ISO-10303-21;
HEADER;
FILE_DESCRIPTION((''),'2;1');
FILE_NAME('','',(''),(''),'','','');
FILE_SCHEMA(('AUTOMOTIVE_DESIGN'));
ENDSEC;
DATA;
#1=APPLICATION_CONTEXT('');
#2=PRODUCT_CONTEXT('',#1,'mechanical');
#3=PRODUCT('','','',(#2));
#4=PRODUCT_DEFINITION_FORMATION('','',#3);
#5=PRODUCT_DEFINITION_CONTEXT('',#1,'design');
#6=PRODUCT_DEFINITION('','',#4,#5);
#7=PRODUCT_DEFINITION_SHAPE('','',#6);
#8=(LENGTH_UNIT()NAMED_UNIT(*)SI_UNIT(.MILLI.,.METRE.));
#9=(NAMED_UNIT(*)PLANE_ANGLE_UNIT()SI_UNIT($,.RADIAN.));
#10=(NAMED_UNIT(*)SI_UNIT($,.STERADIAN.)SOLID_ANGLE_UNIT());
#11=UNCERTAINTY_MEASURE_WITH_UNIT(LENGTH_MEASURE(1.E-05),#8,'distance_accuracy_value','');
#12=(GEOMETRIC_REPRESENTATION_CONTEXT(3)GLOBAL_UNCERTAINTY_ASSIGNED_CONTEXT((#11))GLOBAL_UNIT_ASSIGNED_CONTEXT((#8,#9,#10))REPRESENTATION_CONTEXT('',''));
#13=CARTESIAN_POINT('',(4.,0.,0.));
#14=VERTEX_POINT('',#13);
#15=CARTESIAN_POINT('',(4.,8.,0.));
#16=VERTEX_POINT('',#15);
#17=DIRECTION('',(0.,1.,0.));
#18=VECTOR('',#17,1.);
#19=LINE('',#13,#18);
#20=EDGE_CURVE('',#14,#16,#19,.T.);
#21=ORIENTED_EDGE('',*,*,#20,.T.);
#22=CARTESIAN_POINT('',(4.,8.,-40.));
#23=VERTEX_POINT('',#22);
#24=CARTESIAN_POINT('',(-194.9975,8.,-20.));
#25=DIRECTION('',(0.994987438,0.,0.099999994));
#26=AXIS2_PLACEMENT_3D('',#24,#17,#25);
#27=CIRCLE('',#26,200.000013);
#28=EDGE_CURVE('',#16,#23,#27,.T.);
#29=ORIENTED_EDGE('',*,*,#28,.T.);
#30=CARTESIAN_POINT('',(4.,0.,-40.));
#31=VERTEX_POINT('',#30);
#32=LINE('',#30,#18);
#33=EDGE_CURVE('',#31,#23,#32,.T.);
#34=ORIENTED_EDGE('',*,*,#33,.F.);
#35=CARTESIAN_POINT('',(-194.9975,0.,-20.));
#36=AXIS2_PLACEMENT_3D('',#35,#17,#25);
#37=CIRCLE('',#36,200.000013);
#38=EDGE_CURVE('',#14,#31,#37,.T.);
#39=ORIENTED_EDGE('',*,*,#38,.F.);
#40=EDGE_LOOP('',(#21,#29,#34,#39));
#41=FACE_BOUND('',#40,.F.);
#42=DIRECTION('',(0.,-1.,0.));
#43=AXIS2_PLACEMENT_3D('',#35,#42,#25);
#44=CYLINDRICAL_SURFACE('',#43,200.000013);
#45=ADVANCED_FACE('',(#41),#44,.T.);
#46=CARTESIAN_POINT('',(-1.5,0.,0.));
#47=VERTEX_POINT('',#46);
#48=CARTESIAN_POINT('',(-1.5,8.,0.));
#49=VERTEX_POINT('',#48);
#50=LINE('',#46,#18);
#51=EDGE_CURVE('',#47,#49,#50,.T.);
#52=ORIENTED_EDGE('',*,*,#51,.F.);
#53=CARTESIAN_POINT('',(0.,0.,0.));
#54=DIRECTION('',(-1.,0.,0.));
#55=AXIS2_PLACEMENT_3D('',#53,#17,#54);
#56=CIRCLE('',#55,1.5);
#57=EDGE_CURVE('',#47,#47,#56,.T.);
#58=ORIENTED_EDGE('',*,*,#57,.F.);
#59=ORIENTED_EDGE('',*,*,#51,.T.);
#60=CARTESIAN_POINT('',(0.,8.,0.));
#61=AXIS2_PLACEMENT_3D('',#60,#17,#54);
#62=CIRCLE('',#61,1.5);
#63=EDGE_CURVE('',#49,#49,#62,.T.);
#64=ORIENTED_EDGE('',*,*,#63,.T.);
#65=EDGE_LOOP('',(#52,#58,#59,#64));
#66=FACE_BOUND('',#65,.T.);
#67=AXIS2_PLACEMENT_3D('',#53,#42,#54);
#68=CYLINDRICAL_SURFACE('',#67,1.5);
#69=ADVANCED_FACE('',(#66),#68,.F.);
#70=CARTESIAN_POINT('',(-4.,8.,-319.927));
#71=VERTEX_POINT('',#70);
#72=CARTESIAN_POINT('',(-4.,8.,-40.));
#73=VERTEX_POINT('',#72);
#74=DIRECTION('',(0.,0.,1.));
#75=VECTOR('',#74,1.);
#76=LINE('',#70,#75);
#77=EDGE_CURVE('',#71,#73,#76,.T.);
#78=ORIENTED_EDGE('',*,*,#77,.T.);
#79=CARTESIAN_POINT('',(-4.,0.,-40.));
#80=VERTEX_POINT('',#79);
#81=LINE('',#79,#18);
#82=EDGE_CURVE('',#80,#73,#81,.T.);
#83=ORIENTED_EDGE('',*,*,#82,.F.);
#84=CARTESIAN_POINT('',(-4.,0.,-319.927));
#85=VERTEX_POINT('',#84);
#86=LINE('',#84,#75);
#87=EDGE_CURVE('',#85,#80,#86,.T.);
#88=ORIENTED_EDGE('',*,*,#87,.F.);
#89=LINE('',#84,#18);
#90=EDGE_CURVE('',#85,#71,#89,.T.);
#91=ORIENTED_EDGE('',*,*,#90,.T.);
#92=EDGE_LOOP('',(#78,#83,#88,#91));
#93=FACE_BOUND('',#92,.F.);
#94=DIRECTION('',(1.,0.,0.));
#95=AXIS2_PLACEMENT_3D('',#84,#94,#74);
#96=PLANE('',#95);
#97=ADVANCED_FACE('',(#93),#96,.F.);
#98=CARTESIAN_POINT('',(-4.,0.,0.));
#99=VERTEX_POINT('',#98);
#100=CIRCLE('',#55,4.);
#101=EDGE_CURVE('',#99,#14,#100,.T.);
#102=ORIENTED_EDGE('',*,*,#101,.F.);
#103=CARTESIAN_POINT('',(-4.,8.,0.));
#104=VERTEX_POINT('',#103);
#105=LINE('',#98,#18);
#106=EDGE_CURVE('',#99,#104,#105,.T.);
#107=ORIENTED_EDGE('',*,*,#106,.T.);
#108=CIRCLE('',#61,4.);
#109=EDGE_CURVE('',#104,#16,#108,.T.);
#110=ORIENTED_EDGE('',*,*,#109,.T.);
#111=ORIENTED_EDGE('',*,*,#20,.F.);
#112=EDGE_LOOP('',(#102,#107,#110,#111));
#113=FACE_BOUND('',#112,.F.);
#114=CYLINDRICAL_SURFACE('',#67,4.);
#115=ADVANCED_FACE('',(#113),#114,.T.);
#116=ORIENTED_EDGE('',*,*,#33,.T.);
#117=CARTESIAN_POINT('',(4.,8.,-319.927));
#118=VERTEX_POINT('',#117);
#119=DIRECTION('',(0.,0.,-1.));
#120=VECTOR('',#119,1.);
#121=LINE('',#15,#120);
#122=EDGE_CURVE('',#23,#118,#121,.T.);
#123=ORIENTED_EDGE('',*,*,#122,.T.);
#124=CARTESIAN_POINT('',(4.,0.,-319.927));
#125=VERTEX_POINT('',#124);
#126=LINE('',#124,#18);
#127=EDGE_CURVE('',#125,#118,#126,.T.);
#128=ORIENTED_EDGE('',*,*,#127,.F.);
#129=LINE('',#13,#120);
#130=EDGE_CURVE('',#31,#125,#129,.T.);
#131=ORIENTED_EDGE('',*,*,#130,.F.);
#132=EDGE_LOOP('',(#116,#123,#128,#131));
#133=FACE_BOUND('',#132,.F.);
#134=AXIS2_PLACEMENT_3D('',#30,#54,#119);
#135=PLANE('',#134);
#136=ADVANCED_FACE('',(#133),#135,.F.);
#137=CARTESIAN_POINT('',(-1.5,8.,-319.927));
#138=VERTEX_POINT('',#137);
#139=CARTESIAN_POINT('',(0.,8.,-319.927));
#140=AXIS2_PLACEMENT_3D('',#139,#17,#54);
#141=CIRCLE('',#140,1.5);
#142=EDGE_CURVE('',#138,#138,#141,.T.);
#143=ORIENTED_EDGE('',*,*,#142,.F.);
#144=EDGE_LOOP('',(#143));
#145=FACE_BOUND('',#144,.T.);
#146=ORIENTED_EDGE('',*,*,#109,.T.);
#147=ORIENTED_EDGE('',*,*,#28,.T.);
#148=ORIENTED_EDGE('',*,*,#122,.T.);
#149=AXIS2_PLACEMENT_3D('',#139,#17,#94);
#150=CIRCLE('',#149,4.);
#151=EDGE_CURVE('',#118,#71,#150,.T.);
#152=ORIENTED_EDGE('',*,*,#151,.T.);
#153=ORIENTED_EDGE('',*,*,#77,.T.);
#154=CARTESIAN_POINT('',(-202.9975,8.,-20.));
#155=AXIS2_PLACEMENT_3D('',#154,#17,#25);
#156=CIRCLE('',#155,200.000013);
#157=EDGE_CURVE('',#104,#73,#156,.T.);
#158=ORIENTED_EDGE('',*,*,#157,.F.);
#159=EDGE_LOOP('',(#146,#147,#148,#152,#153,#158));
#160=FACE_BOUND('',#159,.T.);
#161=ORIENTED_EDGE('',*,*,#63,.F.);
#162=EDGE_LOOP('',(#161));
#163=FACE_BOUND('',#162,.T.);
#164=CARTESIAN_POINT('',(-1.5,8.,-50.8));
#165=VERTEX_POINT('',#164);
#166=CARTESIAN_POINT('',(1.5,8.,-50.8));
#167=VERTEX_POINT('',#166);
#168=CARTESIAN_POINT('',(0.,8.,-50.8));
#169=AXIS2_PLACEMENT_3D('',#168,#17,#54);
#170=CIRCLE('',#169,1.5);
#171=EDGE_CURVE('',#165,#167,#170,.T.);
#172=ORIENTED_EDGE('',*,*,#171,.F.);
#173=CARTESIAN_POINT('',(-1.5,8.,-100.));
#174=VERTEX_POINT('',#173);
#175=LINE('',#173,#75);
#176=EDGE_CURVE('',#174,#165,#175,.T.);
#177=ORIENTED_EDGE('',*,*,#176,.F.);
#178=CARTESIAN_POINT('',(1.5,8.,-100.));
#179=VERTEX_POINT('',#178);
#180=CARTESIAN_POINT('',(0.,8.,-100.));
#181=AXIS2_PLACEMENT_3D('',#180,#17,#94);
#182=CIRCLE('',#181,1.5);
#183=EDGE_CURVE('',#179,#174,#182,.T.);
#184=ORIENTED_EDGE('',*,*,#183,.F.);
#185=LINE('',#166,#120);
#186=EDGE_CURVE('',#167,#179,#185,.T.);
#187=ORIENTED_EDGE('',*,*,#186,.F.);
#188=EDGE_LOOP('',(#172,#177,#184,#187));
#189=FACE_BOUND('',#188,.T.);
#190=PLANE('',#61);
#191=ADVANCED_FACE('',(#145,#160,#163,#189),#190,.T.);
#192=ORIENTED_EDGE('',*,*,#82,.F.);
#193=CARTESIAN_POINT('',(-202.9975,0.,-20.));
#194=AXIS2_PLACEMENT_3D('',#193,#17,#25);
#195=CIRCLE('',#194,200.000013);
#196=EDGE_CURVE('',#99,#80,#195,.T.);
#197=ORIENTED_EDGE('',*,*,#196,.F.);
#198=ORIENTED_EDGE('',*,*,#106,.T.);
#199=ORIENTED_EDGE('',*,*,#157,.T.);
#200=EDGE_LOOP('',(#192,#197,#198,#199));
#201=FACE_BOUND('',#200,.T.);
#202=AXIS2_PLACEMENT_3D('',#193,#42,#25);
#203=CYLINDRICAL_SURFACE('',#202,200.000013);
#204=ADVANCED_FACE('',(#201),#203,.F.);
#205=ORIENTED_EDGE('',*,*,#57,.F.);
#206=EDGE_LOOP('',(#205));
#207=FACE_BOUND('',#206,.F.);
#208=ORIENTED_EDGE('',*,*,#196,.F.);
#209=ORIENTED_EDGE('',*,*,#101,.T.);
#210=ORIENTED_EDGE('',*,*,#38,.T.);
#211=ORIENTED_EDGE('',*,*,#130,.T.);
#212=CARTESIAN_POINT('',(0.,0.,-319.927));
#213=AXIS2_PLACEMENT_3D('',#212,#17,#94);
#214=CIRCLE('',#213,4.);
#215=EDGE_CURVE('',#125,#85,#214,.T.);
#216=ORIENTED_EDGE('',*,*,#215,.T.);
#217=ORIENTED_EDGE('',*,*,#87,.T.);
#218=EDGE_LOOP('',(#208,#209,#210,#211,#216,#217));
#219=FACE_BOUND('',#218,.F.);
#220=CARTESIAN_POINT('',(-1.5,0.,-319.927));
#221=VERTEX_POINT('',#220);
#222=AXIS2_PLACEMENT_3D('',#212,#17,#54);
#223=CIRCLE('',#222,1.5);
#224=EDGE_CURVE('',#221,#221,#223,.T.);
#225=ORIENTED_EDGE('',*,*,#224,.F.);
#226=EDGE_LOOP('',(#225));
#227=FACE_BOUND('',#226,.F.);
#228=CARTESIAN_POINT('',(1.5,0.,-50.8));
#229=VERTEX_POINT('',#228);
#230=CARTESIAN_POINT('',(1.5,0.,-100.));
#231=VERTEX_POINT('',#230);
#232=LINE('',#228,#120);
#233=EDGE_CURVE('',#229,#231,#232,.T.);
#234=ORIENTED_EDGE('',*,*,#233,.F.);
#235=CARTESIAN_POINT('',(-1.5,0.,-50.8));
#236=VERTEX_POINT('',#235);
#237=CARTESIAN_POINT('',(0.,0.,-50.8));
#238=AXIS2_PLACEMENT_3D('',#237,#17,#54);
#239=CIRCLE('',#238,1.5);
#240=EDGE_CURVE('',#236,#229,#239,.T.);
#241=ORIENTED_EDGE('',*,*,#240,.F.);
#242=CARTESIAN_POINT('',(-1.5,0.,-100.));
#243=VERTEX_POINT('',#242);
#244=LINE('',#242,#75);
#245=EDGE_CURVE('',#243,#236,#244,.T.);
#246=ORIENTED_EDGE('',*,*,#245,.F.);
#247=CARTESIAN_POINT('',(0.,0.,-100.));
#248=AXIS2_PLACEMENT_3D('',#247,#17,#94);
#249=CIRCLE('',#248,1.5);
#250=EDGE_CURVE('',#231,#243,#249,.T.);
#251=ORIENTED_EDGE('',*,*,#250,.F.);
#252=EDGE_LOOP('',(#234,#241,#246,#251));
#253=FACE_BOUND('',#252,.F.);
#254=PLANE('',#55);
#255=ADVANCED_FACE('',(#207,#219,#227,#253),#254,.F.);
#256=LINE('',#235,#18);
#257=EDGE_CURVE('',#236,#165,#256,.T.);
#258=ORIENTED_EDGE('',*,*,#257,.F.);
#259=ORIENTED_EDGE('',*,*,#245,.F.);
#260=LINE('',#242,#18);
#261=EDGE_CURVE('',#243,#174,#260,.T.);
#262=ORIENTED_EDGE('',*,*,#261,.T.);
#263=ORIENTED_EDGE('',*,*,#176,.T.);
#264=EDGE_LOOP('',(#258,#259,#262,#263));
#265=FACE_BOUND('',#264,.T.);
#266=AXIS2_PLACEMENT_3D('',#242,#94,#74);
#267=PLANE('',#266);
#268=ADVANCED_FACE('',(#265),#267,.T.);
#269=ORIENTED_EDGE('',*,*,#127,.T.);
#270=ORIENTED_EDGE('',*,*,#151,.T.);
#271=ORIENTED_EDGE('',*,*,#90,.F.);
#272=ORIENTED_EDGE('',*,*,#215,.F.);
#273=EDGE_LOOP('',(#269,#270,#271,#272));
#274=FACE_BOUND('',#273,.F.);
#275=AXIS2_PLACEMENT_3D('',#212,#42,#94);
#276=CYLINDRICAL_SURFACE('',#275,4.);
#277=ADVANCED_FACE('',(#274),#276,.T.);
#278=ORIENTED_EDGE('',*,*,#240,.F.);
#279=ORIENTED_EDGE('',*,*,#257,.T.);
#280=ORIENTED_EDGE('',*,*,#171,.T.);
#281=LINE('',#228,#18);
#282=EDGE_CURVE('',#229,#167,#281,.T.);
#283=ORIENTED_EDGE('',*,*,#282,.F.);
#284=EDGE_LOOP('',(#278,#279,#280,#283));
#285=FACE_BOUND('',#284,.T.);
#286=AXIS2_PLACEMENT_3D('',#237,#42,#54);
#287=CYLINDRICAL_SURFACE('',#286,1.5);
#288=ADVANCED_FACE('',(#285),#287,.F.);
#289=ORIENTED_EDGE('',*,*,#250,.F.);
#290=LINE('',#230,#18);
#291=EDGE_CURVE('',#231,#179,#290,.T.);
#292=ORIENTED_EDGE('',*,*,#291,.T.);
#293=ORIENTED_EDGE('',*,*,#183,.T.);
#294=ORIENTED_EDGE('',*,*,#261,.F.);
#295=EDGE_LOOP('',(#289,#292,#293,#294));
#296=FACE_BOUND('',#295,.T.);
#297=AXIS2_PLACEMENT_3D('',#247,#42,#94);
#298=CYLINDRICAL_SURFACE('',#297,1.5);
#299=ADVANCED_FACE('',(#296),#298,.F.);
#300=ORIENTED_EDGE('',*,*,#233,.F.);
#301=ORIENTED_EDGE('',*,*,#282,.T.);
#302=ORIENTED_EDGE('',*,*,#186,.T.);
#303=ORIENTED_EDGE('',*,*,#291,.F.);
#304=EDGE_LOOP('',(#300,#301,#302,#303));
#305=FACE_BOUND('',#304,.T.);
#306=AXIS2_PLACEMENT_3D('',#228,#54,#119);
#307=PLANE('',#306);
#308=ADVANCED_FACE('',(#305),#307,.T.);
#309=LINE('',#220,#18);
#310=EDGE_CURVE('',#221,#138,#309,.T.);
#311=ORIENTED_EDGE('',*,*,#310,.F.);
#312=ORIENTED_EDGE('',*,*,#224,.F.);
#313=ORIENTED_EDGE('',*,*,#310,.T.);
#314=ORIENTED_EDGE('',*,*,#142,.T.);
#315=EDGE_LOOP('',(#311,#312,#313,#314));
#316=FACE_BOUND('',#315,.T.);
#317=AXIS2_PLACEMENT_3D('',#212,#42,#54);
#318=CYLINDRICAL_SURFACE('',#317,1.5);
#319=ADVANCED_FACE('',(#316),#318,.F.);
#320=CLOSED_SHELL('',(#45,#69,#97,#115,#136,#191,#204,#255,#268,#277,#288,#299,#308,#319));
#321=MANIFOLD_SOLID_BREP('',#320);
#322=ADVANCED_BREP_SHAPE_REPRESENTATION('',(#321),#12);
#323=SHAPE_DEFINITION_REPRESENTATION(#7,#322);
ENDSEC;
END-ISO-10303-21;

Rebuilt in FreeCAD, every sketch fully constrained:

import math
import FreeCAD as App
import Part
import Sketcher

V = App.Vector
Q = App.Units.Quantity

doc = App.newDocument("Part")
body = doc.addObject("PartDesign::Body", "Body")

sketch1 = doc.addObject("Sketcher::SketchObject", "Sketch")
body.addObject(sketch1)
sketch1.AttachmentSupport = (doc.XZ_Plane, [""])
sketch1.MapMode = "FlatFace"
sketch1.addGeometry(Part.ArcOfCircle(Part.Circle(V(0, 0, 0), V(0, 0, 1), 4), math.radians(0), math.radians(180)), False)
sketch1.addGeometry(Part.ArcOfCircle(Part.Circle(V(-195, -20, 0), V(0, 0, 1), 200), math.radians(-5.74), math.radians(5.74)), False)
sketch1.addGeometry(Part.LineSegment(V(4, -40, 0), V(4, -319.9, 0)), False)
sketch1.addGeometry(Part.ArcOfCircle(Part.Circle(V(0, -319.9, 0), V(0, 0, 1), 4), math.radians(180), math.radians(360)), False)
sketch1.addGeometry(Part.LineSegment(V(-4, -319.9, 0), V(-4, -40, 0)), False)
sketch1.addGeometry(Part.ArcOfCircle(Part.Circle(V(-203, -20, 0), V(0, 0, 1), 200), math.radians(-5.74), math.radians(5.74)), False)
sketch1.addGeometry(Part.Circle(V(0, -319.9, 0), V(0, 0, 1), 1.5), False)
sketch1.addGeometry(Part.LineSegment(V(1.5, -100, 0), V(1.5, -50.8, 0)), False)
sketch1.addGeometry(Part.ArcOfCircle(Part.Circle(V(0, -50.8, 0), V(0, 0, 1), 1.5), math.radians(0), math.radians(180)), False)
sketch1.addGeometry(Part.LineSegment(V(-1.5, -50.8, 0), V(-1.5, -100, 0)), False)
sketch1.addGeometry(Part.ArcOfCircle(Part.Circle(V(0, -100, 0), V(0, 0, 1), 1.5), math.radians(180), math.radians(360)), False)
sketch1.addGeometry(Part.Circle(V(0, 0, 0), V(0, 0, 1), 1.5), False)
sketch1.addConstraint(Sketcher.Constraint("Coincident", 0, 1, 1, 2))
sketch1.addConstraint(Sketcher.Constraint("Coincident", 1, 1, 2, 1))
sketch1.addConstraint(Sketcher.Constraint("Tangent", 2, 2, 3, 2))
sketch1.addConstraint(Sketcher.Constraint("Tangent", 3, 1, 4, 1))
sketch1.addConstraint(Sketcher.Constraint("Coincident", 4, 2, 5, 1))
sketch1.addConstraint(Sketcher.Constraint("Coincident", 5, 2, 0, 2))
sketch1.addConstraint(Sketcher.Constraint("Tangent", 7, 2, 8, 1))
sketch1.addConstraint(Sketcher.Constraint("Tangent", 8, 2, 9, 1))
sketch1.addConstraint(Sketcher.Constraint("Tangent", 9, 2, 10, 1))
sketch1.addConstraint(Sketcher.Constraint("Tangent", 10, 2, 7, 1))
sketch1.addConstraint(Sketcher.Constraint("Vertical", 2))
sketch1.addConstraint(Sketcher.Constraint("Vertical", 4))
sketch1.addConstraint(Sketcher.Constraint("Vertical", 7))
sketch1.addConstraint(Sketcher.Constraint("Vertical", 9))
sketch1.addConstraint(Sketcher.Constraint("Coincident", 0, 3, -1, 1))
sketch1.addConstraint(Sketcher.Constraint("Coincident", 11, 3, -1, 1))
sketch1.addConstraint(Sketcher.Constraint("Coincident", 6, 3, 3, 3))
sketch1.addConstraint(Sketcher.Constraint("Equal", 0, 3))
sketch1.addConstraint(Sketcher.Constraint("Equal", 1, 5))
sketch1.addConstraint(Sketcher.Constraint("Equal", 6, 8))
sketch1.addConstraint(Sketcher.Constraint("Equal", 10, 11))
sketch1.addConstraint(Sketcher.Constraint("Symmetric", 1, 1, 4, 2, -2))
sketch1.addConstraint(Sketcher.Constraint("PointOnObject", 8, 3, -2))
sketch1.addConstraint(Sketcher.Constraint("PointOnObject", 0, 1, -1))
sketch1.addConstraint(Sketcher.Constraint("PointOnObject", 5, 2, -1))
sketch1.addConstraint(Sketcher.Constraint("Diameter", 6, Q("3 mm")))
sketch1.addConstraint(Sketcher.Constraint("Radius", 0, Q("4 mm")))
sketch1.addConstraint(Sketcher.Constraint("Radius", 1, Q("200 mm")))
sketch1.addConstraint(Sketcher.Constraint("DistanceY", 10, 3, -1, 1, Q("100 mm")))
sketch1.addConstraint(Sketcher.Constraint("DistanceY", 1, 1, -1, 1, Q("40 mm")))
sketch1.addConstraint(Sketcher.Constraint("DistanceY", 8, 3, -1, 1, Q("50.8 mm")))
sketch1.addConstraint(Sketcher.Constraint("DistanceY", 3, 3, -1, 1, Q("319.927 mm")))
pad1 = doc.addObject("PartDesign::Pad", "Pad")
body.addObject(pad1)
pad1.Profile = sketch1
pad1.Length = 8
pad1.Reversed = True

doc.recompute()
